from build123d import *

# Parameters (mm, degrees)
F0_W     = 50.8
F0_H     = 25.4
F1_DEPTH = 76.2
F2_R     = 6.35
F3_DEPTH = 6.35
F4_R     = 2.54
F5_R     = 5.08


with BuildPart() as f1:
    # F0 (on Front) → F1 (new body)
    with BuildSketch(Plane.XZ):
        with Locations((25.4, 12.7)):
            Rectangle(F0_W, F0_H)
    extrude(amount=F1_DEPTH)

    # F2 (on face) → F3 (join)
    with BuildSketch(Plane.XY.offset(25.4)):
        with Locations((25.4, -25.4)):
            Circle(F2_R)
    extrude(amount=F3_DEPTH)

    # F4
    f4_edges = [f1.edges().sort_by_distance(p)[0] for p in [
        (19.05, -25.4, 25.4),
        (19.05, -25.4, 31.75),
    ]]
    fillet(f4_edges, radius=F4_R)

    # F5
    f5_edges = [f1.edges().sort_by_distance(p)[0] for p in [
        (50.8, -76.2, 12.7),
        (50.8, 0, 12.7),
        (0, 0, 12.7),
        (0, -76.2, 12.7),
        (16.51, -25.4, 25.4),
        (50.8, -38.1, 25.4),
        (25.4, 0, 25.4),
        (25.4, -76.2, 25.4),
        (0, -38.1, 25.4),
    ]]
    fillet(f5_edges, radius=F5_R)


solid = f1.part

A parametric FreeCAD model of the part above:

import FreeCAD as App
import Part
import Sketcher

V = App.Vector
Q = App.Units.Quantity


def edges_at(feature, points):
    """Names of the edges that pass closest to the given points."""
    edges = feature.Shape.Edges
    near = lambda p: min(range(len(edges)), key=lambda i: edges[i].distToShape(Part.Vertex(*p))[0])
    return sorted({f"Edge{near(p) + 1}" for p in points})

doc = App.newDocument("Part")
body = doc.addObject("PartDesign::Body", "Body")

# Sketch on XZ plane
sketch1 = body.newObject("Sketcher::SketchObject", "Sketch")
sketch1.AttachmentSupport = (doc.getObject("XZ_Plane"), [""])
sketch1.MapMode = "FlatFace"
sketch1.addGeometry([
    Part.LineSegment(V(0, 25, 0), V(0, 0, 0)),
    Part.LineSegment(V(0, 0, 0), V(51, 0, 0)),
    Part.LineSegment(V(51, 0, 0), V(51, 25, 0)),
    Part.LineSegment(V(51, 25, 0), V(0, 25, 0)),
], False)
sketch1.addConstraint([
    Sketcher.Constraint("Coincident", 0, 2, 1, 1),
    Sketcher.Constraint("Coincident", 1, 2, 2, 1),
    Sketcher.Constraint("Coincident", 2, 2, 3, 1),
    Sketcher.Constraint("Coincident", 3, 2, 0, 1),
    Sketcher.Constraint("Vertical", 0),
    Sketcher.Constraint("Horizontal", 1),
    Sketcher.Constraint("Vertical", 2),
    Sketcher.Constraint("Horizontal", 3),
    Sketcher.Constraint("Coincident", 0, 2, -1, 1),
    Sketcher.Constraint("DistanceX", 1, 1, 1, 2, Q("2 in")),
    Sketcher.Constraint("DistanceY", 0, 2, 0, 1, Q("1 in")),
])
pad1 = body.newObject("PartDesign::Pad", "Pad")
pad1.Profile = sketch1
pad1.Length = Q("3 in")

# Sketch on XY plane
sketch2 = body.newObject("Sketcher::SketchObject", "Sketch001")
sketch2.AttachmentSupport = (doc.getObject("XY_Plane"), [""])
sketch2.MapMode = "FlatFace"
sketch2.AttachmentOffset = App.Placement(V(0, 0, 1 * 25.4), App.Rotation())
sketch2.addGeometry(Part.Circle(V(25, -25, 0), V(0, 0, 1), 6), False)
sketch2.addConstraint([
    Sketcher.Constraint("Diameter", 0, Q("0.5 in")),
    Sketcher.Constraint("DistanceX", -1, 1, 0, 3, Q("1 in")),
    Sketcher.Constraint("DistanceY", 0, 3, -1, 1, Q("1 in")),
])
pad2 = body.newObject("PartDesign::Pad", "Pad001")
pad2.Profile = sketch2
pad2.Length = Q("0.25 in")
doc.recompute()

fillet = body.newObject("PartDesign::Fillet", "Fillet")
fillet.Base = (pad2, edges_at(pad2, [(19.05, -25.4, 25.4), (19.05, -25.4, 31.75)]))
fillet.Radius = Q("0.1 in")
doc.recompute()

fillet2 = body.newObject("PartDesign::Fillet", "Fillet001")
fillet2.Base = (fillet, edges_at(fillet, [
    (50.8, -76.2, 12.7),
    (50.8, 0, 12.7),
    (0, 0, 12.7),
    (0, -76.2, 12.7),
    (16.51, -25.4, 25.4),
    (50.8, -38.1, 25.4),
    (25.4, 0, 25.4),
    (25.4, -76.2, 25.4),
    (0, -38.1, 25.4),
]))
fillet2.Radius = Q("0.2 in")

doc.recompute()
